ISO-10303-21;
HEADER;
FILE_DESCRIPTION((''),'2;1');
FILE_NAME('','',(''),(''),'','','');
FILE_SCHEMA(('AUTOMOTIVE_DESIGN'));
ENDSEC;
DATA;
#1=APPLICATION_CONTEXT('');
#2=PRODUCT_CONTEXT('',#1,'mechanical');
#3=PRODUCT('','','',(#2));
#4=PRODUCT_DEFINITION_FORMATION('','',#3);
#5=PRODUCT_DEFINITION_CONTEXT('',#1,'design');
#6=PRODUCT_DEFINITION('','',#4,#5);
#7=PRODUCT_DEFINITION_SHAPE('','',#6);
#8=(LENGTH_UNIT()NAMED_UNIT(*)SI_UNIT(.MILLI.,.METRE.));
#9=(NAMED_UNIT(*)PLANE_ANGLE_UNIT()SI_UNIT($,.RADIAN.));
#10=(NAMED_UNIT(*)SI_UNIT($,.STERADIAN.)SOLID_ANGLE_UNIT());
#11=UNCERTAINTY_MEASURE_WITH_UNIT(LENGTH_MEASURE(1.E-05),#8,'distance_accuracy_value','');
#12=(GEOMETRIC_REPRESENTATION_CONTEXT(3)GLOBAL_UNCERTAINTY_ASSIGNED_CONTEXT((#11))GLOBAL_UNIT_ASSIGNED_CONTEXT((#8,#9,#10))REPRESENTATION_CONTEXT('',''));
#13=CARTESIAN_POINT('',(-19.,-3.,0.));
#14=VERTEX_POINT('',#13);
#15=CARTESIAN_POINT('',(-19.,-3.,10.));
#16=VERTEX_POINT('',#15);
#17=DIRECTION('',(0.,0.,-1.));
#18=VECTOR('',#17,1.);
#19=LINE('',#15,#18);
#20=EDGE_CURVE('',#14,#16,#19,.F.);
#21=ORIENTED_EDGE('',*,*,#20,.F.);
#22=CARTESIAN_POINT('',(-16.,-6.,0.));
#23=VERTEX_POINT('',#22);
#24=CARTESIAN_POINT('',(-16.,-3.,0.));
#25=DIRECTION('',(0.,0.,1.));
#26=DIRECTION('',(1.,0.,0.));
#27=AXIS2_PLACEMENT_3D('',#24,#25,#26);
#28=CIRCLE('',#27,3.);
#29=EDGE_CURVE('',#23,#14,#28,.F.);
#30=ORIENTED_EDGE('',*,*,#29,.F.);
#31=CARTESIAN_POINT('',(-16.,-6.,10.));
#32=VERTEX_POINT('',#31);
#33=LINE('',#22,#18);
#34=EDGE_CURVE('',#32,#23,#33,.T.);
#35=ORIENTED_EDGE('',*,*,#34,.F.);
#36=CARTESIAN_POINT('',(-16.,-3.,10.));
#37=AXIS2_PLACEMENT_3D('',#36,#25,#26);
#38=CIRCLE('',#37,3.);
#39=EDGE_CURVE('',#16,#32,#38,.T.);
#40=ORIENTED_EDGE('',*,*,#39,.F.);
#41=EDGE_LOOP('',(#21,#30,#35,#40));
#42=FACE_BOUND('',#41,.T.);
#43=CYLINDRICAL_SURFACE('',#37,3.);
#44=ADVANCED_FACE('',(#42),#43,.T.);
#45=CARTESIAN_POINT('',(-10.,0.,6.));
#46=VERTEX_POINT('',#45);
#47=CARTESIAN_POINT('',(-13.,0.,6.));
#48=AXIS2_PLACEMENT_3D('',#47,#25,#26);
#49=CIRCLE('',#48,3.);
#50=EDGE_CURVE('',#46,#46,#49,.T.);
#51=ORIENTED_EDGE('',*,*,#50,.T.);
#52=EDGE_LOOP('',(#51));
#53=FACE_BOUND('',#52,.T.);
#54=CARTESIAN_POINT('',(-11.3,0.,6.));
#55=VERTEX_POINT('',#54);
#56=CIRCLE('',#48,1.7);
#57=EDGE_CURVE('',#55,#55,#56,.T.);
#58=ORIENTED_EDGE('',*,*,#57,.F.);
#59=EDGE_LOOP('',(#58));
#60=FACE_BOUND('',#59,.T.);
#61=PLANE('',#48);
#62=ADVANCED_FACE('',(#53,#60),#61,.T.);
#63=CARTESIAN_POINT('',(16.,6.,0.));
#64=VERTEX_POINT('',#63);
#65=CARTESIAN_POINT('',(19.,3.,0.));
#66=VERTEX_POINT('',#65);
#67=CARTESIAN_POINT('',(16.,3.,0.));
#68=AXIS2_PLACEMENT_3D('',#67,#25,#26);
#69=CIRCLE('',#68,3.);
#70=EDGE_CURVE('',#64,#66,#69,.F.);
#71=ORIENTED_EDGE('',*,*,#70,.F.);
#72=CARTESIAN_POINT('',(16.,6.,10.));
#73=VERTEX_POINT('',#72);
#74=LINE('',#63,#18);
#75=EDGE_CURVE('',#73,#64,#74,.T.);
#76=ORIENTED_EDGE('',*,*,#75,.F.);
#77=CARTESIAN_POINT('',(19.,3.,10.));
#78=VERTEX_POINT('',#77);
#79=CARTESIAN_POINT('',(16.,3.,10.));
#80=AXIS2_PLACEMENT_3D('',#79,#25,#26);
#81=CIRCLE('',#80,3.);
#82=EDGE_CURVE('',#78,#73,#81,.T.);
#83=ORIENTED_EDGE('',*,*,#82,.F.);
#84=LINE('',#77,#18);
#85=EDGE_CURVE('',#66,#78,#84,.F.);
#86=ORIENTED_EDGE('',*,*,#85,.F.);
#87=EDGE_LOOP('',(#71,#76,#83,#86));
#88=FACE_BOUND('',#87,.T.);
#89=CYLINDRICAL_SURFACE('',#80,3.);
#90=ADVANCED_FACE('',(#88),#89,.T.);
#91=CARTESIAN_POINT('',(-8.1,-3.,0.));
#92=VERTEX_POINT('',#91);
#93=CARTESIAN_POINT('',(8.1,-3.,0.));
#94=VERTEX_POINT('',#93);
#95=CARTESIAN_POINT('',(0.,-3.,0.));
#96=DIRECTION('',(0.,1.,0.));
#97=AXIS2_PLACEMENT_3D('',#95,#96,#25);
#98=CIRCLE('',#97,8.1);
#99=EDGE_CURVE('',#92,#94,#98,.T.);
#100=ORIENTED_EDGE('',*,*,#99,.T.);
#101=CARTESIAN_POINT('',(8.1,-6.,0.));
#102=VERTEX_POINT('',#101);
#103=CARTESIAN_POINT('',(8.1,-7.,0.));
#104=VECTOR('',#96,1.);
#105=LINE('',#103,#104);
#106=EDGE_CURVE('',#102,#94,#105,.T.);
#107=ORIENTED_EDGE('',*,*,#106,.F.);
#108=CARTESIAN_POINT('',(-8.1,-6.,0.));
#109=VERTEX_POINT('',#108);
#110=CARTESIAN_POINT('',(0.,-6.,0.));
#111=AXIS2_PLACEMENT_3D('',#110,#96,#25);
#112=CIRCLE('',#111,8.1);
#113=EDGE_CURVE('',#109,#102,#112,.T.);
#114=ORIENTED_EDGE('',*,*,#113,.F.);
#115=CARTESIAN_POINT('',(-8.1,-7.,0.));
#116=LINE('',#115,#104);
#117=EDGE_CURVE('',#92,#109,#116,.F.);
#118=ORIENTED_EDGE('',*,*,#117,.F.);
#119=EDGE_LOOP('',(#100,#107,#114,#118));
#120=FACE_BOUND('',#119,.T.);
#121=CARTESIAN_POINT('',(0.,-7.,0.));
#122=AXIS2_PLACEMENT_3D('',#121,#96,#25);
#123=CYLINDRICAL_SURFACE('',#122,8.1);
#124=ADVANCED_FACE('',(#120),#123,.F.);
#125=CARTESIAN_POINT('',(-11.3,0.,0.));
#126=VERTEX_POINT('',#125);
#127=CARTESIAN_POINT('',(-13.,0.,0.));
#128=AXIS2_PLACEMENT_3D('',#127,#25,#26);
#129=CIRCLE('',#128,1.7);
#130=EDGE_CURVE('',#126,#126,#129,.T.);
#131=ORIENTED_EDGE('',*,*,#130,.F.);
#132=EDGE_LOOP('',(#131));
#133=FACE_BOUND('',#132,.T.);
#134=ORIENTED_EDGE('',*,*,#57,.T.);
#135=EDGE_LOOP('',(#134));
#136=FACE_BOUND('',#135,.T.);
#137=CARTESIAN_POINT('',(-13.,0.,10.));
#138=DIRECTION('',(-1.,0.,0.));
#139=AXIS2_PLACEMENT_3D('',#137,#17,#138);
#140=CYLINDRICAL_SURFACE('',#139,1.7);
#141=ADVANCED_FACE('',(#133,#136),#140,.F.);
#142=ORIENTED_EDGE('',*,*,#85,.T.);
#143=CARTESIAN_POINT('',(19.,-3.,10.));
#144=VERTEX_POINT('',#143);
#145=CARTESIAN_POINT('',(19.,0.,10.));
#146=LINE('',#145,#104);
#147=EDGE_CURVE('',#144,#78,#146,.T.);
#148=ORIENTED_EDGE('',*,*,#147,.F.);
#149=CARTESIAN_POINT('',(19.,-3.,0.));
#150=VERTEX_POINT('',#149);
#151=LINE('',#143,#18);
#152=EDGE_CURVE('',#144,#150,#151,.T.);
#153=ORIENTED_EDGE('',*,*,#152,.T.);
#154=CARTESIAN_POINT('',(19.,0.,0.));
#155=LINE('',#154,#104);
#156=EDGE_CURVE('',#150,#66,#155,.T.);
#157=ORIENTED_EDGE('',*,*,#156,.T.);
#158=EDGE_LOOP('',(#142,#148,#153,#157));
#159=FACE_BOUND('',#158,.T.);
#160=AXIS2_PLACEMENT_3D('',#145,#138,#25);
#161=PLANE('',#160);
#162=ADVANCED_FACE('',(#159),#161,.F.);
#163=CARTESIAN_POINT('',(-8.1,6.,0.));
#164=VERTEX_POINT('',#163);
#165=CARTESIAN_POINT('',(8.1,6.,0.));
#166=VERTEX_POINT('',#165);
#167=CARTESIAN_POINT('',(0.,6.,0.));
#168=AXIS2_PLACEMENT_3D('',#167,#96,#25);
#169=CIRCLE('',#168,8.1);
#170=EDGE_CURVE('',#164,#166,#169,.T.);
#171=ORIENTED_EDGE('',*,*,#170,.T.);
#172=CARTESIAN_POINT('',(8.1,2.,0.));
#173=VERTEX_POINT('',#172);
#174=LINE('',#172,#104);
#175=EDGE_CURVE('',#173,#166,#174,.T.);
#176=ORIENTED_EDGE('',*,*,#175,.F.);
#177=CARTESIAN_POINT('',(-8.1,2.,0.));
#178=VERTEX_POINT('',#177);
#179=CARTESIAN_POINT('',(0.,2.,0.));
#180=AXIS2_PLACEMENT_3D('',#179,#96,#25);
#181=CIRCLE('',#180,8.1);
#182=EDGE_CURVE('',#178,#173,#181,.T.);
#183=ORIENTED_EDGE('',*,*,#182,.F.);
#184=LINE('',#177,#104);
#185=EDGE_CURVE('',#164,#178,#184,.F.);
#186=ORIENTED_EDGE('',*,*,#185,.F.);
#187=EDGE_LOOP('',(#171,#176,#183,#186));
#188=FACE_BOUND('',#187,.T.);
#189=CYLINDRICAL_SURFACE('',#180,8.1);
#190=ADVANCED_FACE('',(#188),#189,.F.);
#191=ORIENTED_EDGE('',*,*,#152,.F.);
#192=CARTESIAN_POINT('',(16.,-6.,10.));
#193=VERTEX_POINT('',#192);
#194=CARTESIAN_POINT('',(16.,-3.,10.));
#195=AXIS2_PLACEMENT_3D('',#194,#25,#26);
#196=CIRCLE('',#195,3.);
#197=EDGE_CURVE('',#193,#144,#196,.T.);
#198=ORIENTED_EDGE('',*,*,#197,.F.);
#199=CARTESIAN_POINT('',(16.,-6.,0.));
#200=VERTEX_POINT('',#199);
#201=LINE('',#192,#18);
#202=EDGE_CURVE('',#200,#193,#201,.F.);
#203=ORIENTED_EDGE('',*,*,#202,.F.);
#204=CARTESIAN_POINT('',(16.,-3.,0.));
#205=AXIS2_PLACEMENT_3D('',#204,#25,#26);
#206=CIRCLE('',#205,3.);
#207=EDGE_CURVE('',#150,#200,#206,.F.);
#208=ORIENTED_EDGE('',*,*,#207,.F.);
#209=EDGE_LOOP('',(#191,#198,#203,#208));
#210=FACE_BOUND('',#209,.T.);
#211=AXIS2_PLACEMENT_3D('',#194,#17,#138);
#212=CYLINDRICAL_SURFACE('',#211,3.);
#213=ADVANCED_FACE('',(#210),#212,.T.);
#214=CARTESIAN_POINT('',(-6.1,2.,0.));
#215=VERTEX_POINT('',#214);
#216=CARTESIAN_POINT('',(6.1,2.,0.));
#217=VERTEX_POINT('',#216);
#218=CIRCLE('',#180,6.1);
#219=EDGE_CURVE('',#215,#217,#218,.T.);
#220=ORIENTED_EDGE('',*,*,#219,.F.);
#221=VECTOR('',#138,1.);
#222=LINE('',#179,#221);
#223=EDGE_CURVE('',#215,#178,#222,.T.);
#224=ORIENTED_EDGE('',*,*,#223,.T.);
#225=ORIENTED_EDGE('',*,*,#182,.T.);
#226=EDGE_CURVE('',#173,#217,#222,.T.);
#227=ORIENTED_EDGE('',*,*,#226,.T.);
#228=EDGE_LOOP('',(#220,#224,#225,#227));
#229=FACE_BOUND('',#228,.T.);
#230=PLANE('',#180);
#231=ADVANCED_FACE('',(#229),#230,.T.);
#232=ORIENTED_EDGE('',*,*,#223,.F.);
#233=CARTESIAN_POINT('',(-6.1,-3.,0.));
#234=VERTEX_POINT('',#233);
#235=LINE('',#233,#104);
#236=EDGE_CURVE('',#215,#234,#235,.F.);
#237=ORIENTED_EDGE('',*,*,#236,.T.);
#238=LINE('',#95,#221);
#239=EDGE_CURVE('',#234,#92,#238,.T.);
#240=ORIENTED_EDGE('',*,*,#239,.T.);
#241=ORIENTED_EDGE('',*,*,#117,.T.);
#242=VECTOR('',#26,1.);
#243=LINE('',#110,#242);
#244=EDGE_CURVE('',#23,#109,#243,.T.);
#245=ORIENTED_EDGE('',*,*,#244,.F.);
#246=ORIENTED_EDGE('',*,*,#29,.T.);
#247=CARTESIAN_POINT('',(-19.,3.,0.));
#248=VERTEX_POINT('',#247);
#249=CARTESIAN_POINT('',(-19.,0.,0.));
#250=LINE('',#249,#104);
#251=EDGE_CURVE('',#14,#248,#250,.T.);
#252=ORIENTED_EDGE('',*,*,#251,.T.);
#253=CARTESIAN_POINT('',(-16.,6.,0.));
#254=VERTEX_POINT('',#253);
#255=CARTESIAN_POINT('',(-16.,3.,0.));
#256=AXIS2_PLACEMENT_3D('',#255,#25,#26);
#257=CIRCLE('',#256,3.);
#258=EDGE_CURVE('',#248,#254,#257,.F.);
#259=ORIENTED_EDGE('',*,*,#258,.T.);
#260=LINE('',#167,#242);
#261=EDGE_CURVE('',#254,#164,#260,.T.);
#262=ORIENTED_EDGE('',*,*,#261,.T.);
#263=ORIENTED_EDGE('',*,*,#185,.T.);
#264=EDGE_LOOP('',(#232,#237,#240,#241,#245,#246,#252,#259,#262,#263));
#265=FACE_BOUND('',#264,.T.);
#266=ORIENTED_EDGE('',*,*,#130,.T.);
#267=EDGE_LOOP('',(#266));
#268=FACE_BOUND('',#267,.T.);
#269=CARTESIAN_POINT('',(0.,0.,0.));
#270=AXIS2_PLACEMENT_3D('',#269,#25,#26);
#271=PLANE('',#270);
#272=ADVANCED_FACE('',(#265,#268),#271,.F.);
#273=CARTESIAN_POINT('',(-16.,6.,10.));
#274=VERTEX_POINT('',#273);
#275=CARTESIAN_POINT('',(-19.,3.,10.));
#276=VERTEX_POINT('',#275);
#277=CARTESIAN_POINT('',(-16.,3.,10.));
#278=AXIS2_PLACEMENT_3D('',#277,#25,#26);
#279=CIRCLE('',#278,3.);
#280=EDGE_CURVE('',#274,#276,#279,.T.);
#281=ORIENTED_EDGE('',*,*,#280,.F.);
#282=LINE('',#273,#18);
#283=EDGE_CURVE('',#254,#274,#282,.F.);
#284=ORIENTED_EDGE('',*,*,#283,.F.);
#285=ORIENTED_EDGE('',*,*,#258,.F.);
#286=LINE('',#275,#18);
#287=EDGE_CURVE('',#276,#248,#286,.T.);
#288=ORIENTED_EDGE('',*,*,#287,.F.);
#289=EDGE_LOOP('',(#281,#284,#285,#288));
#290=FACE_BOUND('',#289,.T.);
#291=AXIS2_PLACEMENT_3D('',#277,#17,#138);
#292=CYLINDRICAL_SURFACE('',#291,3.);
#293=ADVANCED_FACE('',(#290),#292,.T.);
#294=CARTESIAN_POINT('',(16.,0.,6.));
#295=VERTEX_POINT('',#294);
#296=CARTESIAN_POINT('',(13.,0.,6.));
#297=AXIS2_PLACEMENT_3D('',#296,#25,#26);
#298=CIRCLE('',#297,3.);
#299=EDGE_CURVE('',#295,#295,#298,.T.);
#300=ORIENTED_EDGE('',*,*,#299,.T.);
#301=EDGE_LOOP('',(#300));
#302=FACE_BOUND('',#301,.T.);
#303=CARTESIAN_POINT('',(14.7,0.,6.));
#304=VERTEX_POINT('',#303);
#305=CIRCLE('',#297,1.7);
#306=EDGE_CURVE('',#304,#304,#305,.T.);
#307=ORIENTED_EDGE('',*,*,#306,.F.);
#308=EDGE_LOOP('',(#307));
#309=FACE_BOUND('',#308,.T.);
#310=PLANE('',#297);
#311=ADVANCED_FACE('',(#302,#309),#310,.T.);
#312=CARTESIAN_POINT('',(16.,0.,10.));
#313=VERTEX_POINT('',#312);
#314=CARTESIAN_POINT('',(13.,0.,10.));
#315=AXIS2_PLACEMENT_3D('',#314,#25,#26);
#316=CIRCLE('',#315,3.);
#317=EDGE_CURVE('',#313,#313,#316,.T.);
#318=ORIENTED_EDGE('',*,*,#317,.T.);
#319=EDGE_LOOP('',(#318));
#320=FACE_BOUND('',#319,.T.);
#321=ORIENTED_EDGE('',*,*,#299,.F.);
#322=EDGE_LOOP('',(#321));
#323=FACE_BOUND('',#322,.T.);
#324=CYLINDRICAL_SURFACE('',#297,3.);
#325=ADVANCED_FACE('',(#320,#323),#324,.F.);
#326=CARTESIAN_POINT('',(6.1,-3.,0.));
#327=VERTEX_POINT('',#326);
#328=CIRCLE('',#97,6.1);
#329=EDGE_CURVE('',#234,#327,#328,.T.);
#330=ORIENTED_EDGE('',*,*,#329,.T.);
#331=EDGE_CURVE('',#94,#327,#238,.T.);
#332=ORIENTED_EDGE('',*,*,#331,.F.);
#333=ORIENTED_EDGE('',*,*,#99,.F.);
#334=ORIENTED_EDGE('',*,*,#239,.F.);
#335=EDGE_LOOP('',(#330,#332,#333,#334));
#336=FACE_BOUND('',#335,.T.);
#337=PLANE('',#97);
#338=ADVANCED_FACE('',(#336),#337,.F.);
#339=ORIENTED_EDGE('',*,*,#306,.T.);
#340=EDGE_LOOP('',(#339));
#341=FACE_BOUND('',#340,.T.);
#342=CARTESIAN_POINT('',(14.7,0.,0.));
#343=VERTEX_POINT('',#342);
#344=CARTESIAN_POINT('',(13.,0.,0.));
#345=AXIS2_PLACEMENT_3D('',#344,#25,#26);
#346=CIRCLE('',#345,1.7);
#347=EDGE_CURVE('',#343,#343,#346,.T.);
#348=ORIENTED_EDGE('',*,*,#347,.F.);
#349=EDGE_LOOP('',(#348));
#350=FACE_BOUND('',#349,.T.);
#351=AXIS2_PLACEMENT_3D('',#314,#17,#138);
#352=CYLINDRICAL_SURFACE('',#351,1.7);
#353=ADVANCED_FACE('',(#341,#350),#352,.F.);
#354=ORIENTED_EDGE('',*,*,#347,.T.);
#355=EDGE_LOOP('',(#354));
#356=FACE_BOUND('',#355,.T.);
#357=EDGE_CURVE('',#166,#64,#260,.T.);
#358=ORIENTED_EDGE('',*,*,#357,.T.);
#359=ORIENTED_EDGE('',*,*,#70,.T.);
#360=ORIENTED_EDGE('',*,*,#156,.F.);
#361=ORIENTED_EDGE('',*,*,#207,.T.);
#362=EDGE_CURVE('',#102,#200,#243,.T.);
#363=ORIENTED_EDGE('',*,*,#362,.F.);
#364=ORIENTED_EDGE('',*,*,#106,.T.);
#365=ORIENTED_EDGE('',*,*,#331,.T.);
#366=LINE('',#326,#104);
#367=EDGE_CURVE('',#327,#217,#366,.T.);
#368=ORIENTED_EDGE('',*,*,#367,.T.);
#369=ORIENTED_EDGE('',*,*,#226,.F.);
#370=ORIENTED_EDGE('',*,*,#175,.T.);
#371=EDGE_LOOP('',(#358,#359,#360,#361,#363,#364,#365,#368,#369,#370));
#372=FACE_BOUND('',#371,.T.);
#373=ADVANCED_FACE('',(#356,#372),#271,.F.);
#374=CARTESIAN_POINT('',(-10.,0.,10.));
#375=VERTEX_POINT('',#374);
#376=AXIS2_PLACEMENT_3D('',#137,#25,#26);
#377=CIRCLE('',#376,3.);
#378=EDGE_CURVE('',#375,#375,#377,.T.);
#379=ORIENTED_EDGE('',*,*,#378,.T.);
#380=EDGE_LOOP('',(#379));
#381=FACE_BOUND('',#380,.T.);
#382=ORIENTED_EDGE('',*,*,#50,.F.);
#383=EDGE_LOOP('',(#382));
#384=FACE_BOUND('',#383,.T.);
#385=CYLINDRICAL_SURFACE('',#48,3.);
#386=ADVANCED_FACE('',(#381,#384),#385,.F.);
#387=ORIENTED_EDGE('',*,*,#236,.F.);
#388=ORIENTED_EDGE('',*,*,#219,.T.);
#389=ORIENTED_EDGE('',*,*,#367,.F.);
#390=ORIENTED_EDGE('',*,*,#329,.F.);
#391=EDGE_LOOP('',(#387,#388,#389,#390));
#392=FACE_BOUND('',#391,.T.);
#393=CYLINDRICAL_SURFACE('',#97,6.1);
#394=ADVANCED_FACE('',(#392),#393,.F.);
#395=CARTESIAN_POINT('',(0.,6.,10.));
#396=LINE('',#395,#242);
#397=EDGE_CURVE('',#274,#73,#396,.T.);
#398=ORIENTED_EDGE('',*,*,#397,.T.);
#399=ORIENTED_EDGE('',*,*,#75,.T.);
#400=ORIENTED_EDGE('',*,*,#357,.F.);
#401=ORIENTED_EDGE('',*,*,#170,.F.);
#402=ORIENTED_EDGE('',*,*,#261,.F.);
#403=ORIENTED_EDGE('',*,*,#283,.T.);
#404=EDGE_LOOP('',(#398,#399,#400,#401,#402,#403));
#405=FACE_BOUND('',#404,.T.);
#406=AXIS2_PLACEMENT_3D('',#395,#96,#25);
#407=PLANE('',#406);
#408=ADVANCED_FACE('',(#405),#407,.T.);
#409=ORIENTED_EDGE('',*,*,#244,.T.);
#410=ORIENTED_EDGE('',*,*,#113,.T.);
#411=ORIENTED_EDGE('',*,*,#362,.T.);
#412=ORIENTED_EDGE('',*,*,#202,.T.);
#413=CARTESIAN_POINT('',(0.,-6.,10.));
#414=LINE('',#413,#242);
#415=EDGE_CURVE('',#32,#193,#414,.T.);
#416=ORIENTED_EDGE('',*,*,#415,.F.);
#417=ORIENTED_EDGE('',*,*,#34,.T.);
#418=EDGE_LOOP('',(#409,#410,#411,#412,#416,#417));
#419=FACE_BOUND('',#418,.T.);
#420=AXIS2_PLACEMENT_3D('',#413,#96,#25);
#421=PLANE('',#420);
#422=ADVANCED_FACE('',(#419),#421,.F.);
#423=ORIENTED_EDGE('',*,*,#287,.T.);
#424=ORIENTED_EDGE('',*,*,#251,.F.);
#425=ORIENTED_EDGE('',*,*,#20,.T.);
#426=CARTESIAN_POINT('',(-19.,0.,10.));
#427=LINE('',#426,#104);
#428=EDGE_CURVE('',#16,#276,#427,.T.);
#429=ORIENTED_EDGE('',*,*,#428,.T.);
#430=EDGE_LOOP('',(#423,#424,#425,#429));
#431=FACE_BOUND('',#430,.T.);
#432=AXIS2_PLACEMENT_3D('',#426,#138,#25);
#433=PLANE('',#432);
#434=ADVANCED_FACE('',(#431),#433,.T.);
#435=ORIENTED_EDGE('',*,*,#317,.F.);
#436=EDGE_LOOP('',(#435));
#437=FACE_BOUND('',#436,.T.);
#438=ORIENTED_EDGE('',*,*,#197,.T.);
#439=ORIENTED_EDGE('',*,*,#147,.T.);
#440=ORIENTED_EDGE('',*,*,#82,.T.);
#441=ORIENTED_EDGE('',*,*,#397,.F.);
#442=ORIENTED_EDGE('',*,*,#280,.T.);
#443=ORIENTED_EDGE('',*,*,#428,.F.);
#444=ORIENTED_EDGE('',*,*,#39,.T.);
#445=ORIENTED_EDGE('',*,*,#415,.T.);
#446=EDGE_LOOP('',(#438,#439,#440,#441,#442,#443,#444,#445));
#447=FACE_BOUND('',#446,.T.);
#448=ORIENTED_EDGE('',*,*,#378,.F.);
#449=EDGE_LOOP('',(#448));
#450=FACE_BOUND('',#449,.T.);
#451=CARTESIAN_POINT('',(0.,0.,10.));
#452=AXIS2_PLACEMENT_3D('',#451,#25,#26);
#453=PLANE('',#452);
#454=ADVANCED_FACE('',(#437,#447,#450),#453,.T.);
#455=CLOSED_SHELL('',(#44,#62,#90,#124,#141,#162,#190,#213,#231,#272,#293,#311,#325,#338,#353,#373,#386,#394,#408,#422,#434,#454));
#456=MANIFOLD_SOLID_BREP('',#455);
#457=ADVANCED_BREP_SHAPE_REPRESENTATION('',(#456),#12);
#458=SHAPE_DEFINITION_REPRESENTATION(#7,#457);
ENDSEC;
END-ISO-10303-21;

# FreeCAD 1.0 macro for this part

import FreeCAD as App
import Part
import Sketcher
from FreeCAD import Vector


def edges_at(feature, points):
    """Names of the edges that pass closest to the given points."""
    edges = feature.Shape.Edges
    near = lambda p: min(range(len(edges)), key=lambda i: edges[i].distToShape(Part.Vertex(*p))[0])
    return sorted({f"Edge{near(p) + 1}" for p in points})

doc = App.newDocument("Part")
params = doc.addObject("Spreadsheet::Sheet", "Params")
for row, (alias, value) in enumerate([
    ("sketch1_diameter", "3.4 mm"),
    ("sketch1_width", "38 mm"),
    ("sketch1_height", "12 mm"),
    ("pad1_length", "10 mm"),
    ("fillet_radius", "3 mm"),
    ("sketch2_diameter", "16.2 mm"),
    ("pocket1_length", "4 mm"),
    ("sketch3_diameter", "12.2 mm"),
    ("pocket2_length", "5 mm"),
    ("sketch4_diameter", "16.2 mm"),
    ("pocket3_length", "4 mm"),
    ("sketch5_diameter", "6 mm"),
    ("pocket4_length", "4 mm"),
], start=1):
    params.set(f"A{row}", alias)
    params.set(f"B{row}", "=" + value)
    params.setAlias(f"B{row}", alias)

body = doc.addObject("PartDesign::Body", "Body")

# Sketch on XY plane
sketch1 = body.newObject("Sketcher::SketchObject", "Sketch")
sketch1.AttachmentSupport = (doc.getObject("XY_Plane"), [""])
sketch1.MapMode = "FlatFace"
sketch1.addGeometry([
    Part.LineSegment(Vector(-19, 6, 0), Vector(-19, -6, 0)),  # 0
    Part.LineSegment(Vector(-19, -6, 0), Vector(19, -6, 0)),  # 1
    Part.LineSegment(Vector(19, -6, 0), Vector(19, 6, 0)),  # 2
    Part.LineSegment(Vector(19, 6, 0), Vector(-19, 6, 0)),  # 3
    Part.Circle(Vector(-13, 0, 0), Vector(0, 0, 1), 1.7),  # 4
    Part.Circle(Vector(13, 0, 0), Vector(0, 0, 1), 1.7),  # 5
], False)
sketch1.addConstraint([
    Sketcher.Constraint("Coincident", 0, 2, 1, 1),
    Sketcher.Constraint("Coincident", 1, 2, 2, 1),
    Sketcher.Constraint("Coincident", 2, 2, 3, 1),
    Sketcher.Constraint("Coincident", 3, 2, 0, 1),
    Sketcher.Constraint("Vertical", 0),
    Sketcher.Constraint("Horizontal", 1),
    Sketcher.Constraint("Vertical", 2),
    Sketcher.Constraint("Horizontal", 3),
    Sketcher.Constraint("Equal", 4, 5),
    Sketcher.Constraint("Symmetric", 4, 3, 5, 3, -1, 1),
    Sketcher.Constraint("Symmetric", 0, 2, 2, 2, -1, 1),
    Sketcher.Constraint("PointOnObject", 4, 3, -1),
    Sketcher.Constraint("Diameter", 4, 3.4),
    Sketcher.Constraint("DistanceX", 1, 1, 1, 2, 38.0),
    Sketcher.Constraint("DistanceY", 0, 2, 0, 1, 12.0),
    Sketcher.Constraint("DistanceX", 4, 3, -1, 1, 13.0),
])
sketch1.setExpression("Constraints[12]", "Params.sketch1_diameter")
sketch1.setExpression("Constraints[13]", "Params.sketch1_width")
sketch1.setExpression("Constraints[14]", "Params.sketch1_height")
pad1 = body.newObject("PartDesign::Pad", "Pad")
pad1.Profile = sketch1
pad1.setExpression("Length", "Params.pad1_length")
doc.recompute()

fillet = body.newObject("PartDesign::Fillet", "Fillet")
fillet.Base = (pad1, edges_at(pad1, [
    (-19, -6, 5),
    (-19, 6, 5),
    (19, 6, 5),
    (19, -6, 5),
]))
fillet.setExpression("Radius", "Params.fillet_radius")

# Sketch on XZ plane
sketch2 = body.newObject("Sketcher::SketchObject", "Sketch001")
sketch2.AttachmentSupport = (doc.getObject("XZ_Plane"), [""])
sketch2.MapMode = "FlatFace"
sketch2.AttachmentOffset = App.Placement(Vector(0, 0, -6), App.Rotation())
sketch2.addGeometry(Part.Circle(Vector(0, 0, 0), Vector(0, 0, 1), 8), False)
sketch2.addConstraint([
    Sketcher.Constraint("Coincident", 0, 3, -1, 1),
    Sketcher.Constraint("Diameter", 0, 16.2),
])
sketch2.setExpression("Constraints[1]", "Params.sketch2_diameter")
pocket1 = body.newObject("PartDesign::Pocket", "Pocket")
pocket1.Profile = sketch2
pocket1.setExpression("Length", "Params.pocket1_length")
pocket1.Reversed = True

# Sketch on XZ plane
sketch3 = body.newObject("Sketcher::SketchObject", "Sketch002")
sketch3.AttachmentSupport = (doc.getObject("XZ_Plane"), [""])
sketch3.MapMode = "FlatFace"
sketch3.AttachmentOffset = App.Placement(Vector(0, 0, -2), App.Rotation())
sketch3.addGeometry(Part.Circle(Vector(0, 0, 0), Vector(0, 0, 1), 6), False)
sketch3.addConstraint([
    Sketcher.Constraint("Coincident", 0, 3, -1, 1),
    Sketcher.Constraint("Diameter", 0, 12.2),
])
sketch3.setExpression("Constraints[1]", "Params.sketch3_diameter")
pocket2 = body.newObject("PartDesign::Pocket", "Pocket001")
pocket2.Profile = sketch3
pocket2.setExpression("Length", "Params.pocket2_length")
pocket2.Reversed = True

# Sketch on XZ plane
sketch4 = body.newObject("Sketcher::SketchObject", "Sketch003")
sketch4.AttachmentSupport = (doc.getObject("XZ_Plane"), [""])
sketch4.MapMode = "FlatFace"
sketch4.AttachmentOffset = App.Placement(Vector(0, 0, 3), App.Rotation())
sketch4.addGeometry(Part.Circle(Vector(0, 0, 0), Vector(0, 0, 1), 8), False)
sketch4.addConstraint([
    Sketcher.Constraint("Coincident", 0, 3, -1, 1),
    Sketcher.Constraint("Diameter", 0, 16.2),
])
sketch4.setExpression("Constraints[1]", "Params.sketch4_diameter")
pocket3 = body.newObject("PartDesign::Pocket", "Pocket002")
pocket3.Profile = sketch4
pocket3.setExpression("Length", "Params.pocket3_length")
pocket3.Reversed = True

# Sketch on XY plane
sketch5 = body.newObject("Sketcher::SketchObject", "Sketch004")
sketch5.AttachmentSupport = (doc.getObject("XY_Plane"), [""])
sketch5.MapMode = "FlatFace"
sketch5.AttachmentOffset = App.Placement(Vector(0, 0, 10), App.Rotation())
sketch5.addGeometry([
    Part.Circle(Vector(-13, 0, 0), Vector(0, 0, 1), 3),
    Part.Circle(Vector(13, 0, 0), Vector(0, 0, 1), 3),
], False)
sketch5.addConstraint([
    Sketcher.Constraint("Equal", 0, 1),
    Sketcher.Constraint("Symmetric", 0, 3, 1, 3, -1, 1),
    Sketcher.Constraint("PointOnObject", 0, 3, -1),
    Sketcher.Constraint("Diameter", 0, 6.0),
    Sketcher.Constraint("DistanceX", 0, 3, -1, 1, 13.0),
])
sketch5.setExpression("Constraints[3]", "Params.sketch5_diameter")
pocket4 = body.newObject("PartDesign::Pocket", "Pocket003")
pocket4.Profile = sketch5
pocket4.setExpression("Length", "Params.pocket4_length")

doc.recompute()
